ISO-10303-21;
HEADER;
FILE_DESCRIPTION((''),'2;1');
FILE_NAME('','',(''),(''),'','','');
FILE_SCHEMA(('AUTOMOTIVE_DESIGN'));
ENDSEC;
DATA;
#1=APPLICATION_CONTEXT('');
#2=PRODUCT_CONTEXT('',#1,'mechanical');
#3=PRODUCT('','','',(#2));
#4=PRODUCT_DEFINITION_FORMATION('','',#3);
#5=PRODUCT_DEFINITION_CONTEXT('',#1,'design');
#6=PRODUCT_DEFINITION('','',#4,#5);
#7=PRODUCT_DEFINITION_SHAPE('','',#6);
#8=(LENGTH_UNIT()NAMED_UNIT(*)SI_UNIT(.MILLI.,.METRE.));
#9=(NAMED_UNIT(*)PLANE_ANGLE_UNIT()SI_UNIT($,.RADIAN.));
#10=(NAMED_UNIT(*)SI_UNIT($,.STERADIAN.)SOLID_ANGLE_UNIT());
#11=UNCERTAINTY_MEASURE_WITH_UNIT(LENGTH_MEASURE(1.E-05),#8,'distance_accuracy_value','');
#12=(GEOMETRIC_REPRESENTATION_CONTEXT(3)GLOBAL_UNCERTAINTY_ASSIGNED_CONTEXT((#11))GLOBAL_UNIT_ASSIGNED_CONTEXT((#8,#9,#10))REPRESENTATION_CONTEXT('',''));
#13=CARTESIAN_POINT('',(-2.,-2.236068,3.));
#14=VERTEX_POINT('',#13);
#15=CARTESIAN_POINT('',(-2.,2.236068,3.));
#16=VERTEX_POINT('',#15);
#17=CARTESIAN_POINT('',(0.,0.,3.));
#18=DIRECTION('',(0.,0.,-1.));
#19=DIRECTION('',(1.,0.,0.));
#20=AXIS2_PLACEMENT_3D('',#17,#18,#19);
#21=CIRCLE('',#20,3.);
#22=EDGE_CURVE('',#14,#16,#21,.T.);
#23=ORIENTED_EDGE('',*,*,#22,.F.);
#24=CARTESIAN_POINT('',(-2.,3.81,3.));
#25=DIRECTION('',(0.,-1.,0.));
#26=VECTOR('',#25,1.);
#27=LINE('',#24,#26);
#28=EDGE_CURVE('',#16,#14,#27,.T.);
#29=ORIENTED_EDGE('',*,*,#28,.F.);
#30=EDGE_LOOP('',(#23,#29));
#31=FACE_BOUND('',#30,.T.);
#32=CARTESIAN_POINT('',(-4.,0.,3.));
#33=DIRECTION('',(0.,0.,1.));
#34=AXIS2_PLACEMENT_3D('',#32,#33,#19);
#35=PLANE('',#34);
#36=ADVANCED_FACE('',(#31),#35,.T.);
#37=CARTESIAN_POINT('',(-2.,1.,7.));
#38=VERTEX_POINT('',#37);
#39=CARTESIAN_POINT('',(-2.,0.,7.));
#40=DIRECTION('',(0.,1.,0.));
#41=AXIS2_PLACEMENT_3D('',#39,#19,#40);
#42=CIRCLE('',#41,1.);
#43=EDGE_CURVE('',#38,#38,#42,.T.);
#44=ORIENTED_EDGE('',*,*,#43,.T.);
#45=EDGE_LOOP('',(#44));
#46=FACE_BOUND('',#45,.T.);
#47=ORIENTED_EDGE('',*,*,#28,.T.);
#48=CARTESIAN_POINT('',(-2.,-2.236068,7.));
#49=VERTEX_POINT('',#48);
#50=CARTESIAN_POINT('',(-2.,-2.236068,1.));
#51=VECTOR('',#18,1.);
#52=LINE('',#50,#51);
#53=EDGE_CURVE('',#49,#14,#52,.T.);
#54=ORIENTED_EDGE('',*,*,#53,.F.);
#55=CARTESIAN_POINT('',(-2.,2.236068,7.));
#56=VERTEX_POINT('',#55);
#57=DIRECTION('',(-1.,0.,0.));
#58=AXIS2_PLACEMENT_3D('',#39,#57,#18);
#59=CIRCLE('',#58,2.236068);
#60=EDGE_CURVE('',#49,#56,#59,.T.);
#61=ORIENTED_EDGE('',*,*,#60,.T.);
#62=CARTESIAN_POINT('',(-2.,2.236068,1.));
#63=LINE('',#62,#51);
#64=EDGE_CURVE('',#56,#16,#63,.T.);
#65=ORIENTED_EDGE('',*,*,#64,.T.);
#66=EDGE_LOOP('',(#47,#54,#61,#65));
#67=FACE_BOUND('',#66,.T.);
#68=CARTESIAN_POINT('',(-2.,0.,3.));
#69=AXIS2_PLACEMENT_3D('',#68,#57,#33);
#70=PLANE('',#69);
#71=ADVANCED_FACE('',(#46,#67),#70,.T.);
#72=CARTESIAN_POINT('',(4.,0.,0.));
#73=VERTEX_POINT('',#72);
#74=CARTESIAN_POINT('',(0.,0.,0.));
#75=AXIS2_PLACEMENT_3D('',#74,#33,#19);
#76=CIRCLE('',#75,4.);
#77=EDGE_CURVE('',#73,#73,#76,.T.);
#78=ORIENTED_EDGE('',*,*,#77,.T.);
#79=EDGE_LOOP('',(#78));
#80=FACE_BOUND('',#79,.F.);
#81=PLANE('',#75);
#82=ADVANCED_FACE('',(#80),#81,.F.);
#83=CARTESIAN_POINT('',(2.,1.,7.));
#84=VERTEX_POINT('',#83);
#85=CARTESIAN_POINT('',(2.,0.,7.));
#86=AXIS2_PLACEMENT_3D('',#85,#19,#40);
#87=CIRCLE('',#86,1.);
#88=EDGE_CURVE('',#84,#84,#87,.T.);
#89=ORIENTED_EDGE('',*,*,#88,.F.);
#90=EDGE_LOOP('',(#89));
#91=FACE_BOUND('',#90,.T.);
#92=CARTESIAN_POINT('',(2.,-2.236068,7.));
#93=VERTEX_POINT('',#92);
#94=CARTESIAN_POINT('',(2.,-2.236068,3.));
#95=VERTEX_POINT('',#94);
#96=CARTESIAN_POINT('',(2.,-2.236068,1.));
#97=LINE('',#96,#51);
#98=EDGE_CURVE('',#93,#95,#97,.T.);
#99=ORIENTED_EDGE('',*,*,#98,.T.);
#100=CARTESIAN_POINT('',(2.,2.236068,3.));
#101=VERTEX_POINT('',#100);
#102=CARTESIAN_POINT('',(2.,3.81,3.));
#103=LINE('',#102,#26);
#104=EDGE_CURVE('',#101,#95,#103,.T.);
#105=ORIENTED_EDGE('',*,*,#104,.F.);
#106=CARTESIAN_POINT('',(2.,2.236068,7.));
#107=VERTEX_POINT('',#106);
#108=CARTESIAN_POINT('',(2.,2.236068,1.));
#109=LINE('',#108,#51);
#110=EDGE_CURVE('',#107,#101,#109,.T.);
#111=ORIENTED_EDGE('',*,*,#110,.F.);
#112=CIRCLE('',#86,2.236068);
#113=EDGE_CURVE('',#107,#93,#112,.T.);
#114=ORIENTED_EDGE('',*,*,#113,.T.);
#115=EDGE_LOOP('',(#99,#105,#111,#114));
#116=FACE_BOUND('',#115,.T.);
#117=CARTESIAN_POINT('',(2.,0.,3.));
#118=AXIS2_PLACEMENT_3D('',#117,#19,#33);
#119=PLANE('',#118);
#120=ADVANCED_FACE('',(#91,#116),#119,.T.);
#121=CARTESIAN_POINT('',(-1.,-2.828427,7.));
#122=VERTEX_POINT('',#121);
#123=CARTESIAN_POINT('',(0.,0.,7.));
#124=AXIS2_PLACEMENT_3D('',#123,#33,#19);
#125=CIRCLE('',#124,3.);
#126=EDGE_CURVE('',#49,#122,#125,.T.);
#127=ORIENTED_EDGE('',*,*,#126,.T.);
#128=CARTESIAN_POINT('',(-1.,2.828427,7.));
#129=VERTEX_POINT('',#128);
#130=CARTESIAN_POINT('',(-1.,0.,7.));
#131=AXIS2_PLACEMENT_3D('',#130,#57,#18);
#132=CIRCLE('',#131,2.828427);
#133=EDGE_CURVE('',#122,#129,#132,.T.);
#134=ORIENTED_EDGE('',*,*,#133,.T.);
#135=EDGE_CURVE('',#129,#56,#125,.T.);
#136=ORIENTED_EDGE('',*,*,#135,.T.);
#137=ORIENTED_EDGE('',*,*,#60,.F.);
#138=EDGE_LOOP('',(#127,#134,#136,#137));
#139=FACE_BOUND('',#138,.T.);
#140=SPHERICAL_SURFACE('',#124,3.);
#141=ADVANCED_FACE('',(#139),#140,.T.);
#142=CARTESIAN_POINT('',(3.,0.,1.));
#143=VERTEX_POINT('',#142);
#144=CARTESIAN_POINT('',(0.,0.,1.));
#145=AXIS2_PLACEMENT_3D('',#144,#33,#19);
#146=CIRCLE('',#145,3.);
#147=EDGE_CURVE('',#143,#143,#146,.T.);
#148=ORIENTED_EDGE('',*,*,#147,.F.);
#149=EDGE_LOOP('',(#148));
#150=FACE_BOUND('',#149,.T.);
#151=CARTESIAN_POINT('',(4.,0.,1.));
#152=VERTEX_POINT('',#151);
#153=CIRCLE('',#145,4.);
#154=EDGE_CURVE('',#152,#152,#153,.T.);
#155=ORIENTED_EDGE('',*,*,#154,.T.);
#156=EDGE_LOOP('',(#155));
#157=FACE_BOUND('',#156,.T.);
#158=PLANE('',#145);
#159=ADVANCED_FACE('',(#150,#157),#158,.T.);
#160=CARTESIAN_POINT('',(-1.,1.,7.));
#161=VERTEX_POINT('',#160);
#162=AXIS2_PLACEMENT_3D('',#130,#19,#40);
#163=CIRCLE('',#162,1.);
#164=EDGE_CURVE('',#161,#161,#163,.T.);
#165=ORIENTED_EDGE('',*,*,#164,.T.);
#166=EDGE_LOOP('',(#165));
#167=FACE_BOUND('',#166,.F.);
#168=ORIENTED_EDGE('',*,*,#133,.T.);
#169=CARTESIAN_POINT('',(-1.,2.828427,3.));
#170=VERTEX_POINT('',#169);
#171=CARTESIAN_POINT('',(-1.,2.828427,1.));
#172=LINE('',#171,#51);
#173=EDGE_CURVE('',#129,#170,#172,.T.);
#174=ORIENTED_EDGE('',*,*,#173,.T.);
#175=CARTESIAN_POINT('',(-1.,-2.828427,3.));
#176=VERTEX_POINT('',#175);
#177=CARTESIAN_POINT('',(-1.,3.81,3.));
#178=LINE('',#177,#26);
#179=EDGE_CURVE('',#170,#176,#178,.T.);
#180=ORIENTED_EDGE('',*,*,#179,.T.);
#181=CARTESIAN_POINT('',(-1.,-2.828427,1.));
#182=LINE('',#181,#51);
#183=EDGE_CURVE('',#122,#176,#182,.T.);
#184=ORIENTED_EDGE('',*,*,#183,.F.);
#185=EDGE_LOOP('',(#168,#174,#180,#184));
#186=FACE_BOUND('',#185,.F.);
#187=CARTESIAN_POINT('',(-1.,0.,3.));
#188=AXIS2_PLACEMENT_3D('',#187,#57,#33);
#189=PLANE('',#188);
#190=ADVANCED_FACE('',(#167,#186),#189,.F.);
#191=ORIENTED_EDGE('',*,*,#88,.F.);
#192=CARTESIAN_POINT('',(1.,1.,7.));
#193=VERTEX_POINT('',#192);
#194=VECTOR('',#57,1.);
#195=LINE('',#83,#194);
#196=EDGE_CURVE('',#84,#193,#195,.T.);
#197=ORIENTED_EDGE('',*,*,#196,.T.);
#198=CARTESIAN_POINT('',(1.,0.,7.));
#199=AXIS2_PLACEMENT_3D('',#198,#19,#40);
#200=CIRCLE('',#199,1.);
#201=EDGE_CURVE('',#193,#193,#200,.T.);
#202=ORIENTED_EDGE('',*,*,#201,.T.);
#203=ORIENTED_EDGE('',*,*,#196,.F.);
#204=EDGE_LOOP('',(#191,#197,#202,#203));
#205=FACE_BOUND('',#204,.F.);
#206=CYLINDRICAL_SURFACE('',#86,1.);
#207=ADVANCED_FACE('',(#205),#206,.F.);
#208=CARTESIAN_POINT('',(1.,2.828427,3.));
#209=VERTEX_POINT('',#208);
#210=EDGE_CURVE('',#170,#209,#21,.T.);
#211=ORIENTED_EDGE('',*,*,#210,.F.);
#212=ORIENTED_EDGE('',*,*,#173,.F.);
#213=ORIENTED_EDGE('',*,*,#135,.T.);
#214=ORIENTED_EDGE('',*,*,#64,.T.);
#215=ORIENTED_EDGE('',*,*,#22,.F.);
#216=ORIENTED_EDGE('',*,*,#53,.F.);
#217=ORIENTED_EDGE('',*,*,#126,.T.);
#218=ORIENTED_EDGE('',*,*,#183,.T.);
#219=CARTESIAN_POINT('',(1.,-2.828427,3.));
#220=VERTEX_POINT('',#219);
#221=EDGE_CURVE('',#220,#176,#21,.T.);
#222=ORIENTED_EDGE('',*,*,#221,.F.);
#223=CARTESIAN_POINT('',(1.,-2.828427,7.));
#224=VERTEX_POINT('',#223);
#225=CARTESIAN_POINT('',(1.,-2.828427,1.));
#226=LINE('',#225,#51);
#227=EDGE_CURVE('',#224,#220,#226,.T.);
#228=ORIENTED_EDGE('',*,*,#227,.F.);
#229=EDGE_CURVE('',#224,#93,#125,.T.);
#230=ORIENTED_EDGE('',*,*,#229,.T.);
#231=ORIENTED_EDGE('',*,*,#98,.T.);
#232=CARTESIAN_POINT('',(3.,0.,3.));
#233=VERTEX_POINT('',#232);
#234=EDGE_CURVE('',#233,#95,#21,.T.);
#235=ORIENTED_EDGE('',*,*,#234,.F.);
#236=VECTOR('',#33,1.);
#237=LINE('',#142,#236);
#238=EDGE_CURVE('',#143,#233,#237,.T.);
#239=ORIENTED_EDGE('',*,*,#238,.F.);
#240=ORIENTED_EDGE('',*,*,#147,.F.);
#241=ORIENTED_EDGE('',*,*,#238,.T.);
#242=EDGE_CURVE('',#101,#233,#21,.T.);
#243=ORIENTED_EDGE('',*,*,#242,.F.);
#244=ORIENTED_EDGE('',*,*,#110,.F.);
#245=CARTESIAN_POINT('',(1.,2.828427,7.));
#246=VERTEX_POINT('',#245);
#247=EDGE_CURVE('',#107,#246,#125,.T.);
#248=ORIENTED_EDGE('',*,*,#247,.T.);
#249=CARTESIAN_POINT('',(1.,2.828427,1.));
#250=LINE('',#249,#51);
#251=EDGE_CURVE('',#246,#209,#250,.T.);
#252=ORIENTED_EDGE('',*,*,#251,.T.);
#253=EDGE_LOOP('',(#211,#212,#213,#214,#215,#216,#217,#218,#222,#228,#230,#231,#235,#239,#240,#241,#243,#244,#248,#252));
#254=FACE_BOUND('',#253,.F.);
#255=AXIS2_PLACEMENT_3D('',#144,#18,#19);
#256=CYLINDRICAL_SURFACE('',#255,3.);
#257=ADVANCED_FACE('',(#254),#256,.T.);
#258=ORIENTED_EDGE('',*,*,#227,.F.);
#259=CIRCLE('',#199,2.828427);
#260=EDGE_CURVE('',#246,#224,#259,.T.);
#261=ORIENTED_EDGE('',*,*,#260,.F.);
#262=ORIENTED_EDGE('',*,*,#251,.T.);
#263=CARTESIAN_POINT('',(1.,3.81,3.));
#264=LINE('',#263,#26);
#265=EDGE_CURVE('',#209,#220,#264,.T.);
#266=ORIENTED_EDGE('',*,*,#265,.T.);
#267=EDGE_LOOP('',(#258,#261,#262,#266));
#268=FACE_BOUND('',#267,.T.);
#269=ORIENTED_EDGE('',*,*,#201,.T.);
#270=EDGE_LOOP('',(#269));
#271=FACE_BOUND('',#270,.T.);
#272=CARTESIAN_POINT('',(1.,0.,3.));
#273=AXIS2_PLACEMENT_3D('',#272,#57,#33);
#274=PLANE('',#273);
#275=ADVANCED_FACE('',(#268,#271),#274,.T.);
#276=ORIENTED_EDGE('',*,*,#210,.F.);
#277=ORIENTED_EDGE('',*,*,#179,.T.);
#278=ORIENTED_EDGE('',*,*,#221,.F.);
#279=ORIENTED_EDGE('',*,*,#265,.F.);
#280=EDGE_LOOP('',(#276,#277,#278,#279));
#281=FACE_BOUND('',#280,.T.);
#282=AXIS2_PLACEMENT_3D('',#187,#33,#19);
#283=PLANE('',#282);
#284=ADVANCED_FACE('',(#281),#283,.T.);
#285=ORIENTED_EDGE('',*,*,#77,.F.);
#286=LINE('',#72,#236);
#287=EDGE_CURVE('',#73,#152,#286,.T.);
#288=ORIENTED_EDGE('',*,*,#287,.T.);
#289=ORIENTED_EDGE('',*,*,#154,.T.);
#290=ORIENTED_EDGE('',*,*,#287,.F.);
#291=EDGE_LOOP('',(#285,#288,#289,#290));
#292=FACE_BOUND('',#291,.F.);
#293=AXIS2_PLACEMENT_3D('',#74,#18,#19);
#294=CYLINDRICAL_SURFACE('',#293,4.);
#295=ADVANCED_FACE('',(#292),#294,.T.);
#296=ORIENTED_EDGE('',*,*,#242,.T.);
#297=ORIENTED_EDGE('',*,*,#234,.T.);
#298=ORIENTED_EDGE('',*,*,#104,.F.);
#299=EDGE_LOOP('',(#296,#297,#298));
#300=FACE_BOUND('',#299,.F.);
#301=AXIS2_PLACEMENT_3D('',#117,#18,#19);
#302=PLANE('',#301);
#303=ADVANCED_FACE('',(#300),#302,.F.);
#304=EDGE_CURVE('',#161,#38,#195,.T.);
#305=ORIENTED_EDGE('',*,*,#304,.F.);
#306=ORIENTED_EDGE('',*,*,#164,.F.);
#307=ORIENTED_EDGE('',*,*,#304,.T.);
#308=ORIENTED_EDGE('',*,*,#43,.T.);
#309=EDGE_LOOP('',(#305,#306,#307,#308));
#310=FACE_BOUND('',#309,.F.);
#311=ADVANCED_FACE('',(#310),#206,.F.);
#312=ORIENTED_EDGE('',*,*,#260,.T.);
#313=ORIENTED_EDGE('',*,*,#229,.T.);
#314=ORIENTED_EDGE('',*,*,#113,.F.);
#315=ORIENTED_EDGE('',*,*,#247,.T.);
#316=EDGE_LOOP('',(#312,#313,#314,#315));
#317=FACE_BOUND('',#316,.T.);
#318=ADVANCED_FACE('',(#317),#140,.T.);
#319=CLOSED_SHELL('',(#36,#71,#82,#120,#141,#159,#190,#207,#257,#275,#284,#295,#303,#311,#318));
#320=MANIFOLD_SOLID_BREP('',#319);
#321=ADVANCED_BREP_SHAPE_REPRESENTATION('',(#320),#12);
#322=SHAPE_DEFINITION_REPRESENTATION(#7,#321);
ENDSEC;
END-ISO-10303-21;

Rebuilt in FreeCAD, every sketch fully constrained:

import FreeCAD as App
import Part
import Sketcher
Q = App.Units.Quantity


def edges_at(feature, points):
    """Names of the edges that pass closest to the given points."""
    edges = feature.Shape.Edges
    near = lambda p: min(range(len(edges)), key=lambda i: edges[i].distToShape(Part.Vertex(*p))[0])
    return sorted({f"Edge{near(p) + 1}" for p in points})

doc = App.newDocument("Part")
body = doc.addObject("PartDesign::Body", "Body")

sketch1 = body.newObject("Sketcher::SketchObject", "Sketch")
sketch1.AttachmentSupport = (doc.getObject("XY_Plane"), [""])
sketch1.MapMode = "FlatFace"
sketch1.addGeometry(Part.Circle(App.Vector(0, 0, 0), App.Vector(0, 0, 1), 4), False)
sketch1.addConstraint([
    Sketcher.Constraint("Coincident", 0, 3, -1, 1),
    Sketcher.Constraint("Diameter", 0, Q("8 mm")),
])
pad1 = body.newObject("PartDesign::Pad", "Pad")
pad1.Profile = sketch1
pad1.Length = 1

sketch2 = body.newObject("Sketcher::SketchObject", "Sketch001")
sketch2.AttachmentSupport = (doc.getObject("XY_Plane"), [""])
sketch2.MapMode = "FlatFace"
sketch2.AttachmentOffset = App.Placement(App.Vector(0, 0, 1), App.Rotation())
sketch2.addGeometry(Part.Circle(App.Vector(0, 0, 0), App.Vector(0, 0, 1), 3), False)
sketch2.addConstraint([
    Sketcher.Constraint("Coincident", 0, 3, -1, 1),
    Sketcher.Constraint("Diameter", 0, Q("6 mm")),
])
pad2 = body.newObject("PartDesign::Pad", "Pad001")
pad2.Profile = sketch2
pad2.Length = 9
doc.recompute()

fillet = body.newObject("PartDesign::Fillet", "Fillet")
fillet.Base = (pad2, edges_at(pad2, [(-3, 0, 10)]))
fillet.Radius = 3

sketch3 = body.newObject("Sketcher::SketchObject", "Sketch002")
sketch3.AttachmentSupport = (doc.getObject("XZ_Plane"), [""])
sketch3.MapMode = "FlatFace"
sketch3.addGeometry([
    Part.LineSegment(App.Vector(-4, 11, 0), App.Vector(-4, 3, 0)),
    Part.LineSegment(App.Vector(-4, 3, 0), App.Vector(-2, 3, 0)),
    Part.LineSegment(App.Vector(-2, 3, 0), App.Vector(-2, 11, 0)),
    Part.LineSegment(App.Vector(-2, 11, 0), App.Vector(-4, 11, 0)),
    Part.LineSegment(App.Vector(-1, 11, 0), App.Vector(-1, 3, 0)),
    Part.LineSegment(App.Vector(-1, 3, 0), App.Vector(1, 3, 0)),
    Part.LineSegment(App.Vector(1, 3, 0), App.Vector(1, 11, 0)),
    Part.LineSegment(App.Vector(1, 11, 0), App.Vector(-1, 11, 0)),
    Part.LineSegment(App.Vector(2, 11, 0), App.Vector(2, 3, 0)),
    Part.LineSegment(App.Vector(2, 3, 0), App.Vector(4, 3, 0)),
    Part.LineSegment(App.Vector(4, 3, 0), App.Vector(4, 11, 0)),
    Part.LineSegment(App.Vector(4, 11, 0), App.Vector(2, 11, 0)),
], False)
sketch3.addConstraint([
    Sketcher.Constraint("Coincident", 0, 2, 1, 1),
    Sketcher.Constraint("Coincident", 1, 2, 2, 1),
    Sketcher.Constraint("Coincident", 2, 2, 3, 1),
    Sketcher.Constraint("Coincident", 3, 2, 0, 1),
    Sketcher.Constraint("Coincident", 4, 2, 5, 1),
    Sketcher.Constraint("Coincident", 5, 2, 6, 1),
    Sketcher.Constraint("Coincident", 6, 2, 7, 1),
    Sketcher.Constraint("Coincident", 7, 2, 4, 1),
    Sketcher.Constraint("Coincident", 8, 2, 9, 1),
    Sketcher.Constraint("Coincident", 9, 2, 10, 1),
    Sketcher.Constraint("Coincident", 10, 2, 11, 1),
    Sketcher.Constraint("Coincident", 11, 2, 8, 1),
    Sketcher.Constraint("Vertical", 0),
    Sketcher.Constraint("Horizontal", 1),
    Sketcher.Constraint("Vertical", 2),
    Sketcher.Constraint("Horizontal", 3),
    Sketcher.Constraint("Vertical", 4),
    Sketcher.Constraint("Horizontal", 5),
    Sketcher.Constraint("Vertical", 6),
    Sketcher.Constraint("Horizontal", 7),
    Sketcher.Constraint("Vertical", 8),
    Sketcher.Constraint("Horizontal", 9),
    Sketcher.Constraint("Vertical", 10),
    Sketcher.Constraint("Horizontal", 11),
    Sketcher.Constraint("Symmetric", 1, 2, 8, 2, -2),
    Sketcher.Constraint("Symmetric", 3, 2, 10, 2, -2),
    Sketcher.Constraint("Horizontal", 1, 2, 4, 2),
    Sketcher.Constraint("Horizontal", 3, 2, 6, 2),
    Sketcher.Constraint("Equal", 3, 5),
    Sketcher.Constraint("DistanceX", 1, 1, 1, 2, Q("2 mm")),
    Sketcher.Constraint("DistanceY", 0, 2, 0, 1, Q("8 mm")),
    Sketcher.Constraint("DistanceX", 0, 2, -1, 1, Q("4 mm")),
    Sketcher.Constraint("DistanceY", -1, 1, 0, 2, Q("3 mm")),
    Sketcher.Constraint("DistanceX", 4, 2, -1, 1, Q("1 mm")),
])
pocket1 = body.newObject("PartDesign::Pocket", "Pocket")
pocket1.Profile = sketch3
pocket1.Length = 7.62
pocket1.Midplane = True

sketch4 = body.newObject("Sketcher::SketchObject", "Sketch003")
sketch4.AttachmentSupport = (doc.getObject("YZ_Plane"), [""])
sketch4.MapMode = "FlatFace"
sketch4.AttachmentOffset = App.Placement(App.Vector(0, 0, 2), App.Rotation())
sketch4.addGeometry(Part.Circle(App.Vector(0, 7, 0), App.Vector(0, 0, 1), 1), False)
sketch4.addConstraint([
    Sketcher.Constraint("PointOnObject", 0, 3, -2),
    Sketcher.Constraint("Diameter", 0, Q("2 mm")),
    Sketcher.Constraint("DistanceY", -1, 1, 0, 3, Q("7 mm")),
])
pocket2 = body.newObject("PartDesign::Pocket", "Pocket001")
pocket2.Profile = sketch4
pocket2.Length = 25

doc.recompute()
